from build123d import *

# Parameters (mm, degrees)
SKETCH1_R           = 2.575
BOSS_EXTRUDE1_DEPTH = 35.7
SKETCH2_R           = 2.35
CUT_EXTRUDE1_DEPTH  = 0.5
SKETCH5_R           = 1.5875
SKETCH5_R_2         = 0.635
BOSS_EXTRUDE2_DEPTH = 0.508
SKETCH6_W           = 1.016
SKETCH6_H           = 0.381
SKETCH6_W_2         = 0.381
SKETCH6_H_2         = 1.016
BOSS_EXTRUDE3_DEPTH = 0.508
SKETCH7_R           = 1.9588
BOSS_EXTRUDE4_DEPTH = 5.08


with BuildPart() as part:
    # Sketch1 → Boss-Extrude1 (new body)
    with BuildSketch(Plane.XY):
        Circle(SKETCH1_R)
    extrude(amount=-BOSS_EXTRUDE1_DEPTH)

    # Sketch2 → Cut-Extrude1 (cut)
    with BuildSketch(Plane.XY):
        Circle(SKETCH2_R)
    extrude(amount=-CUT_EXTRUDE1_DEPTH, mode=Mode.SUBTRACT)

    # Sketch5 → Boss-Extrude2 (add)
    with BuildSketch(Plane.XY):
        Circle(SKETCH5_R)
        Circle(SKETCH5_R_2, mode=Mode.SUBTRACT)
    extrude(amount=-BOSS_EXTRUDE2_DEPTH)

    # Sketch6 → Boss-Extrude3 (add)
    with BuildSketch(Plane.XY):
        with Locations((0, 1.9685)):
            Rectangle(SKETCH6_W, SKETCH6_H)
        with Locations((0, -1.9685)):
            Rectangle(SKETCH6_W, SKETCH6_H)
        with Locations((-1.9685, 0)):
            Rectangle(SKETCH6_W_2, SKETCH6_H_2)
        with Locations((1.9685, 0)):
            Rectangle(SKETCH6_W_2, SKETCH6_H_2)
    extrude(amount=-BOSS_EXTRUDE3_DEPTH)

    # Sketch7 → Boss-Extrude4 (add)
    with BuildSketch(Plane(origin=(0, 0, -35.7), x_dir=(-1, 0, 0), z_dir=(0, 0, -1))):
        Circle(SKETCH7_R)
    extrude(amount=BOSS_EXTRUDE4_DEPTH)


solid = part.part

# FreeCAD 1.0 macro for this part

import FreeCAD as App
import Part
import Sketcher

V = App.Vector
Q = App.Units.Quantity

doc = App.newDocument("Part")
body = doc.addObject("PartDesign::Body", "Body")

sketch1 = body.newObject("Sketcher::SketchObject", "Sketch")
sketch1.AttachmentSupport = (doc.getObject("XY_Plane"), [""])
sketch1.MapMode = "FlatFace"
sketch1.addGeometry(Part.Circle(V(0, 0, 0), V(0, 0, 1), 2.6), False)
sketch1.addConstraint([
    Sketcher.Constraint("Coincident", 0, 3, -1, 1),
    Sketcher.Constraint("Diameter", 0, 5.15),
])
pad1 = body.newObject("PartDesign::Pad", "Pad")
pad1.Profile = sketch1
pad1.Length = 35.7
pad1.Reversed = True

sketch2 = body.newObject("Sketcher::SketchObject", "Sketch001")
sketch2.AttachmentSupport = (doc.getObject("XY_Plane"), [""])
sketch2.MapMode = "FlatFace"
sketch2.addGeometry(Part.Circle(V(0, 0, 0), V(0, 0, 1), 2.4), False)
sketch2.addConstraint([
    Sketcher.Constraint("Coincident", 0, 3, -1, 1),
    Sketcher.Constraint("Diameter", 0, 4.7),
])
pocket1 = body.newObject("PartDesign::Pocket", "Pocket")
pocket1.Profile = sketch2
pocket1.Length = 0.5

sketch3 = body.newObject("Sketcher::SketchObject", "Sketch002")
sketch3.AttachmentSupport = (doc.getObject("XY_Plane"), [""])
sketch3.MapMode = "FlatFace"
sketch3.addGeometry([
    Part.Circle(V(0, 0, 0), V(0, 0, 1), 1.6),
    Part.Circle(V(0, 0, 0), V(0, 0, 1), 0.6),
], False)
sketch3.addConstraint([
    Sketcher.Constraint("Coincident", 0, 3, -1, 1),
    Sketcher.Constraint("Coincident", 1, 3, -1, 1),
    Sketcher.Constraint("Diameter", 1, Q("0.05 in")),
    Sketcher.Constraint("Diameter", 0, Q("0.125 in")),
])
pad2 = body.newObject("PartDesign::Pad", "Pad001")
pad2.Profile = sketch3
pad2.Length = Q("0.02 in")
pad2.Reversed = True

sketch4 = body.newObject("Sketcher::SketchObject", "Sketch003")
sketch4.AttachmentSupport = (doc.getObject("XY_Plane"), [""])
sketch4.MapMode = "FlatFace"
sketch4.addGeometry([
    Part.LineSegment(V(-0.51, 2.16, 0), V(-0.51, 1.78, 0)),
    Part.LineSegment(V(-0.51, 1.78, 0), V(0.51, 1.78, 0)),
    Part.LineSegment(V(0.51, 1.78, 0), V(0.51, 2.16, 0)),
    Part.LineSegment(V(0.51, 2.16, 0), V(-0.51, 2.16, 0)),
    Part.LineSegment(V(-0.51, -1.78, 0), V(-0.51, -2.16, 0)),
    Part.LineSegment(V(-0.51, -2.16, 0), V(0.51, -2.16, 0)),
    Part.LineSegment(V(0.51, -2.16, 0), V(0.51, -1.78, 0)),
    Part.LineSegment(V(0.51, -1.78, 0), V(-0.51, -1.78, 0)),
    Part.LineSegment(V(-2.16, 0.51, 0), V(-2.16, -0.51, 0)),
    Part.LineSegment(V(-2.16, -0.51, 0), V(-1.78, -0.51, 0)),
    Part.LineSegment(V(-1.78, -0.51, 0), V(-1.78, 0.51, 0)),
    Part.LineSegment(V(-1.78, 0.51, 0), V(-2.16, 0.51, 0)),
    Part.LineSegment(V(1.78, 0.51, 0), V(1.78, -0.51, 0)),
    Part.LineSegment(V(1.78, -0.51, 0), V(2.16, -0.51, 0)),
    Part.LineSegment(V(2.16, -0.51, 0), V(2.16, 0.51, 0)),
    Part.LineSegment(V(2.16, 0.51, 0), V(1.78, 0.51, 0)),
], False)
sketch4.addConstraint([
    Sketcher.Constraint("Coincident", 0, 2, 1, 1),
    Sketcher.Constraint("Coincident", 1, 2, 2, 1),
    Sketcher.Constraint("Coincident", 2, 2, 3, 1),
    Sketcher.Constraint("Coincident", 3, 2, 0, 1),
    Sketcher.Constraint("Coincident", 4, 2, 5, 1),
    Sketcher.Constraint("Coincident", 5, 2, 6, 1),
    Sketcher.Constraint("Coincident", 6, 2, 7, 1),
    Sketcher.Constraint("Coincident", 7, 2, 4, 1),
    Sketcher.Constraint("Coincident", 8, 2, 9, 1),
    Sketcher.Constraint("Coincident", 9, 2, 10, 1),
    Sketcher.Constraint("Coincident", 10, 2, 11, 1),
    Sketcher.Constraint("Coincident", 11, 2, 8, 1),
    Sketcher.Constraint("Coincident", 12, 2, 13, 1),
    Sketcher.Constraint("Coincident", 13, 2, 14, 1),
    Sketcher.Constraint("Coincident", 14, 2, 15, 1),
    Sketcher.Constraint("Coincident", 15, 2, 12, 1),
    Sketcher.Constraint("Vertical", 0),
    Sketcher.Constraint("Horizontal", 1),
    Sketcher.Constraint("Vertical", 2),
    Sketcher.Constraint("Horizontal", 3),
    Sketcher.Constraint("Vertical", 4),
    Sketcher.Constraint("Horizontal", 5),
    Sketcher.Constraint("Vertical", 6),
    Sketcher.Constraint("Horizontal", 7),
    Sketcher.Constraint("Vertical", 8),
    Sketcher.Constraint("Horizontal", 9),
    Sketcher.Constraint("Vertical", 10),
    Sketcher.Constraint("Horizontal", 11),
    Sketcher.Constraint("Vertical", 12),
    Sketcher.Constraint("Horizontal", 13),
    Sketcher.Constraint("Vertical", 14),
    Sketcher.Constraint("Horizontal", 15),
    Sketcher.Constraint("Symmetric", 2, 2, 4, 2, -1, 1),
    Sketcher.Constraint("Symmetric", 0, 2, 6, 2, -1, 1),
    Sketcher.Constraint("Symmetric", 10, 2, 12, 2, -1, 1),
    Sketcher.Constraint("Symmetric", 8, 2, 14, 2, -1, 1),
    Sketcher.Constraint("Horizontal", 9, 2, 12, 2),
    Sketcher.Constraint("Vertical", 3, 2, 4, 2),
    Sketcher.Constraint("Equal", 15, 0),
    Sketcher.Constraint("Equal", 7, 8),
    Sketcher.Constraint("DistanceX", 1, 1, 1, 2, Q("0.04 in")),
    Sketcher.Constraint("DistanceX", 9, 1, 9, 2, Q("0.015 in")),
    Sketcher.Constraint("DistanceY", -1, 1, 0, 2, Q("0.07 in")),
    Sketcher.Constraint("DistanceX", 9, 2, -1, 1, Q("0.07 in")),
])
pad3 = body.newObject("PartDesign::Pad", "Pad002")
pad3.Profile = sketch4
pad3.Length = Q("0.02 in")
pad3.Reversed = True

sketch5 = body.newObject("Sketcher::SketchObject", "Sketch004")
sketch5.AttachmentSupport = (doc.getObject("XY_Plane"), [""])
sketch5.MapMode = "FlatFace"
sketch5.AttachmentOffset = App.Placement(V(0, 0, -35.7), App.Rotation())
sketch5.addGeometry(Part.Circle(V(0, 0, 0), V(0, 0, 1), 2), False)
sketch5.addConstraint([
    Sketcher.Constraint("Coincident", 0, 3, -1, 1),
    Sketcher.Constraint("Diameter", 0, 3.9176),
])
pad4 = body.newObject("PartDesign::Pad", "Pad003")
pad4.Profile = sketch5
pad4.Length = Q("0.2 in")
pad4.Reversed = True

doc.recompute()
